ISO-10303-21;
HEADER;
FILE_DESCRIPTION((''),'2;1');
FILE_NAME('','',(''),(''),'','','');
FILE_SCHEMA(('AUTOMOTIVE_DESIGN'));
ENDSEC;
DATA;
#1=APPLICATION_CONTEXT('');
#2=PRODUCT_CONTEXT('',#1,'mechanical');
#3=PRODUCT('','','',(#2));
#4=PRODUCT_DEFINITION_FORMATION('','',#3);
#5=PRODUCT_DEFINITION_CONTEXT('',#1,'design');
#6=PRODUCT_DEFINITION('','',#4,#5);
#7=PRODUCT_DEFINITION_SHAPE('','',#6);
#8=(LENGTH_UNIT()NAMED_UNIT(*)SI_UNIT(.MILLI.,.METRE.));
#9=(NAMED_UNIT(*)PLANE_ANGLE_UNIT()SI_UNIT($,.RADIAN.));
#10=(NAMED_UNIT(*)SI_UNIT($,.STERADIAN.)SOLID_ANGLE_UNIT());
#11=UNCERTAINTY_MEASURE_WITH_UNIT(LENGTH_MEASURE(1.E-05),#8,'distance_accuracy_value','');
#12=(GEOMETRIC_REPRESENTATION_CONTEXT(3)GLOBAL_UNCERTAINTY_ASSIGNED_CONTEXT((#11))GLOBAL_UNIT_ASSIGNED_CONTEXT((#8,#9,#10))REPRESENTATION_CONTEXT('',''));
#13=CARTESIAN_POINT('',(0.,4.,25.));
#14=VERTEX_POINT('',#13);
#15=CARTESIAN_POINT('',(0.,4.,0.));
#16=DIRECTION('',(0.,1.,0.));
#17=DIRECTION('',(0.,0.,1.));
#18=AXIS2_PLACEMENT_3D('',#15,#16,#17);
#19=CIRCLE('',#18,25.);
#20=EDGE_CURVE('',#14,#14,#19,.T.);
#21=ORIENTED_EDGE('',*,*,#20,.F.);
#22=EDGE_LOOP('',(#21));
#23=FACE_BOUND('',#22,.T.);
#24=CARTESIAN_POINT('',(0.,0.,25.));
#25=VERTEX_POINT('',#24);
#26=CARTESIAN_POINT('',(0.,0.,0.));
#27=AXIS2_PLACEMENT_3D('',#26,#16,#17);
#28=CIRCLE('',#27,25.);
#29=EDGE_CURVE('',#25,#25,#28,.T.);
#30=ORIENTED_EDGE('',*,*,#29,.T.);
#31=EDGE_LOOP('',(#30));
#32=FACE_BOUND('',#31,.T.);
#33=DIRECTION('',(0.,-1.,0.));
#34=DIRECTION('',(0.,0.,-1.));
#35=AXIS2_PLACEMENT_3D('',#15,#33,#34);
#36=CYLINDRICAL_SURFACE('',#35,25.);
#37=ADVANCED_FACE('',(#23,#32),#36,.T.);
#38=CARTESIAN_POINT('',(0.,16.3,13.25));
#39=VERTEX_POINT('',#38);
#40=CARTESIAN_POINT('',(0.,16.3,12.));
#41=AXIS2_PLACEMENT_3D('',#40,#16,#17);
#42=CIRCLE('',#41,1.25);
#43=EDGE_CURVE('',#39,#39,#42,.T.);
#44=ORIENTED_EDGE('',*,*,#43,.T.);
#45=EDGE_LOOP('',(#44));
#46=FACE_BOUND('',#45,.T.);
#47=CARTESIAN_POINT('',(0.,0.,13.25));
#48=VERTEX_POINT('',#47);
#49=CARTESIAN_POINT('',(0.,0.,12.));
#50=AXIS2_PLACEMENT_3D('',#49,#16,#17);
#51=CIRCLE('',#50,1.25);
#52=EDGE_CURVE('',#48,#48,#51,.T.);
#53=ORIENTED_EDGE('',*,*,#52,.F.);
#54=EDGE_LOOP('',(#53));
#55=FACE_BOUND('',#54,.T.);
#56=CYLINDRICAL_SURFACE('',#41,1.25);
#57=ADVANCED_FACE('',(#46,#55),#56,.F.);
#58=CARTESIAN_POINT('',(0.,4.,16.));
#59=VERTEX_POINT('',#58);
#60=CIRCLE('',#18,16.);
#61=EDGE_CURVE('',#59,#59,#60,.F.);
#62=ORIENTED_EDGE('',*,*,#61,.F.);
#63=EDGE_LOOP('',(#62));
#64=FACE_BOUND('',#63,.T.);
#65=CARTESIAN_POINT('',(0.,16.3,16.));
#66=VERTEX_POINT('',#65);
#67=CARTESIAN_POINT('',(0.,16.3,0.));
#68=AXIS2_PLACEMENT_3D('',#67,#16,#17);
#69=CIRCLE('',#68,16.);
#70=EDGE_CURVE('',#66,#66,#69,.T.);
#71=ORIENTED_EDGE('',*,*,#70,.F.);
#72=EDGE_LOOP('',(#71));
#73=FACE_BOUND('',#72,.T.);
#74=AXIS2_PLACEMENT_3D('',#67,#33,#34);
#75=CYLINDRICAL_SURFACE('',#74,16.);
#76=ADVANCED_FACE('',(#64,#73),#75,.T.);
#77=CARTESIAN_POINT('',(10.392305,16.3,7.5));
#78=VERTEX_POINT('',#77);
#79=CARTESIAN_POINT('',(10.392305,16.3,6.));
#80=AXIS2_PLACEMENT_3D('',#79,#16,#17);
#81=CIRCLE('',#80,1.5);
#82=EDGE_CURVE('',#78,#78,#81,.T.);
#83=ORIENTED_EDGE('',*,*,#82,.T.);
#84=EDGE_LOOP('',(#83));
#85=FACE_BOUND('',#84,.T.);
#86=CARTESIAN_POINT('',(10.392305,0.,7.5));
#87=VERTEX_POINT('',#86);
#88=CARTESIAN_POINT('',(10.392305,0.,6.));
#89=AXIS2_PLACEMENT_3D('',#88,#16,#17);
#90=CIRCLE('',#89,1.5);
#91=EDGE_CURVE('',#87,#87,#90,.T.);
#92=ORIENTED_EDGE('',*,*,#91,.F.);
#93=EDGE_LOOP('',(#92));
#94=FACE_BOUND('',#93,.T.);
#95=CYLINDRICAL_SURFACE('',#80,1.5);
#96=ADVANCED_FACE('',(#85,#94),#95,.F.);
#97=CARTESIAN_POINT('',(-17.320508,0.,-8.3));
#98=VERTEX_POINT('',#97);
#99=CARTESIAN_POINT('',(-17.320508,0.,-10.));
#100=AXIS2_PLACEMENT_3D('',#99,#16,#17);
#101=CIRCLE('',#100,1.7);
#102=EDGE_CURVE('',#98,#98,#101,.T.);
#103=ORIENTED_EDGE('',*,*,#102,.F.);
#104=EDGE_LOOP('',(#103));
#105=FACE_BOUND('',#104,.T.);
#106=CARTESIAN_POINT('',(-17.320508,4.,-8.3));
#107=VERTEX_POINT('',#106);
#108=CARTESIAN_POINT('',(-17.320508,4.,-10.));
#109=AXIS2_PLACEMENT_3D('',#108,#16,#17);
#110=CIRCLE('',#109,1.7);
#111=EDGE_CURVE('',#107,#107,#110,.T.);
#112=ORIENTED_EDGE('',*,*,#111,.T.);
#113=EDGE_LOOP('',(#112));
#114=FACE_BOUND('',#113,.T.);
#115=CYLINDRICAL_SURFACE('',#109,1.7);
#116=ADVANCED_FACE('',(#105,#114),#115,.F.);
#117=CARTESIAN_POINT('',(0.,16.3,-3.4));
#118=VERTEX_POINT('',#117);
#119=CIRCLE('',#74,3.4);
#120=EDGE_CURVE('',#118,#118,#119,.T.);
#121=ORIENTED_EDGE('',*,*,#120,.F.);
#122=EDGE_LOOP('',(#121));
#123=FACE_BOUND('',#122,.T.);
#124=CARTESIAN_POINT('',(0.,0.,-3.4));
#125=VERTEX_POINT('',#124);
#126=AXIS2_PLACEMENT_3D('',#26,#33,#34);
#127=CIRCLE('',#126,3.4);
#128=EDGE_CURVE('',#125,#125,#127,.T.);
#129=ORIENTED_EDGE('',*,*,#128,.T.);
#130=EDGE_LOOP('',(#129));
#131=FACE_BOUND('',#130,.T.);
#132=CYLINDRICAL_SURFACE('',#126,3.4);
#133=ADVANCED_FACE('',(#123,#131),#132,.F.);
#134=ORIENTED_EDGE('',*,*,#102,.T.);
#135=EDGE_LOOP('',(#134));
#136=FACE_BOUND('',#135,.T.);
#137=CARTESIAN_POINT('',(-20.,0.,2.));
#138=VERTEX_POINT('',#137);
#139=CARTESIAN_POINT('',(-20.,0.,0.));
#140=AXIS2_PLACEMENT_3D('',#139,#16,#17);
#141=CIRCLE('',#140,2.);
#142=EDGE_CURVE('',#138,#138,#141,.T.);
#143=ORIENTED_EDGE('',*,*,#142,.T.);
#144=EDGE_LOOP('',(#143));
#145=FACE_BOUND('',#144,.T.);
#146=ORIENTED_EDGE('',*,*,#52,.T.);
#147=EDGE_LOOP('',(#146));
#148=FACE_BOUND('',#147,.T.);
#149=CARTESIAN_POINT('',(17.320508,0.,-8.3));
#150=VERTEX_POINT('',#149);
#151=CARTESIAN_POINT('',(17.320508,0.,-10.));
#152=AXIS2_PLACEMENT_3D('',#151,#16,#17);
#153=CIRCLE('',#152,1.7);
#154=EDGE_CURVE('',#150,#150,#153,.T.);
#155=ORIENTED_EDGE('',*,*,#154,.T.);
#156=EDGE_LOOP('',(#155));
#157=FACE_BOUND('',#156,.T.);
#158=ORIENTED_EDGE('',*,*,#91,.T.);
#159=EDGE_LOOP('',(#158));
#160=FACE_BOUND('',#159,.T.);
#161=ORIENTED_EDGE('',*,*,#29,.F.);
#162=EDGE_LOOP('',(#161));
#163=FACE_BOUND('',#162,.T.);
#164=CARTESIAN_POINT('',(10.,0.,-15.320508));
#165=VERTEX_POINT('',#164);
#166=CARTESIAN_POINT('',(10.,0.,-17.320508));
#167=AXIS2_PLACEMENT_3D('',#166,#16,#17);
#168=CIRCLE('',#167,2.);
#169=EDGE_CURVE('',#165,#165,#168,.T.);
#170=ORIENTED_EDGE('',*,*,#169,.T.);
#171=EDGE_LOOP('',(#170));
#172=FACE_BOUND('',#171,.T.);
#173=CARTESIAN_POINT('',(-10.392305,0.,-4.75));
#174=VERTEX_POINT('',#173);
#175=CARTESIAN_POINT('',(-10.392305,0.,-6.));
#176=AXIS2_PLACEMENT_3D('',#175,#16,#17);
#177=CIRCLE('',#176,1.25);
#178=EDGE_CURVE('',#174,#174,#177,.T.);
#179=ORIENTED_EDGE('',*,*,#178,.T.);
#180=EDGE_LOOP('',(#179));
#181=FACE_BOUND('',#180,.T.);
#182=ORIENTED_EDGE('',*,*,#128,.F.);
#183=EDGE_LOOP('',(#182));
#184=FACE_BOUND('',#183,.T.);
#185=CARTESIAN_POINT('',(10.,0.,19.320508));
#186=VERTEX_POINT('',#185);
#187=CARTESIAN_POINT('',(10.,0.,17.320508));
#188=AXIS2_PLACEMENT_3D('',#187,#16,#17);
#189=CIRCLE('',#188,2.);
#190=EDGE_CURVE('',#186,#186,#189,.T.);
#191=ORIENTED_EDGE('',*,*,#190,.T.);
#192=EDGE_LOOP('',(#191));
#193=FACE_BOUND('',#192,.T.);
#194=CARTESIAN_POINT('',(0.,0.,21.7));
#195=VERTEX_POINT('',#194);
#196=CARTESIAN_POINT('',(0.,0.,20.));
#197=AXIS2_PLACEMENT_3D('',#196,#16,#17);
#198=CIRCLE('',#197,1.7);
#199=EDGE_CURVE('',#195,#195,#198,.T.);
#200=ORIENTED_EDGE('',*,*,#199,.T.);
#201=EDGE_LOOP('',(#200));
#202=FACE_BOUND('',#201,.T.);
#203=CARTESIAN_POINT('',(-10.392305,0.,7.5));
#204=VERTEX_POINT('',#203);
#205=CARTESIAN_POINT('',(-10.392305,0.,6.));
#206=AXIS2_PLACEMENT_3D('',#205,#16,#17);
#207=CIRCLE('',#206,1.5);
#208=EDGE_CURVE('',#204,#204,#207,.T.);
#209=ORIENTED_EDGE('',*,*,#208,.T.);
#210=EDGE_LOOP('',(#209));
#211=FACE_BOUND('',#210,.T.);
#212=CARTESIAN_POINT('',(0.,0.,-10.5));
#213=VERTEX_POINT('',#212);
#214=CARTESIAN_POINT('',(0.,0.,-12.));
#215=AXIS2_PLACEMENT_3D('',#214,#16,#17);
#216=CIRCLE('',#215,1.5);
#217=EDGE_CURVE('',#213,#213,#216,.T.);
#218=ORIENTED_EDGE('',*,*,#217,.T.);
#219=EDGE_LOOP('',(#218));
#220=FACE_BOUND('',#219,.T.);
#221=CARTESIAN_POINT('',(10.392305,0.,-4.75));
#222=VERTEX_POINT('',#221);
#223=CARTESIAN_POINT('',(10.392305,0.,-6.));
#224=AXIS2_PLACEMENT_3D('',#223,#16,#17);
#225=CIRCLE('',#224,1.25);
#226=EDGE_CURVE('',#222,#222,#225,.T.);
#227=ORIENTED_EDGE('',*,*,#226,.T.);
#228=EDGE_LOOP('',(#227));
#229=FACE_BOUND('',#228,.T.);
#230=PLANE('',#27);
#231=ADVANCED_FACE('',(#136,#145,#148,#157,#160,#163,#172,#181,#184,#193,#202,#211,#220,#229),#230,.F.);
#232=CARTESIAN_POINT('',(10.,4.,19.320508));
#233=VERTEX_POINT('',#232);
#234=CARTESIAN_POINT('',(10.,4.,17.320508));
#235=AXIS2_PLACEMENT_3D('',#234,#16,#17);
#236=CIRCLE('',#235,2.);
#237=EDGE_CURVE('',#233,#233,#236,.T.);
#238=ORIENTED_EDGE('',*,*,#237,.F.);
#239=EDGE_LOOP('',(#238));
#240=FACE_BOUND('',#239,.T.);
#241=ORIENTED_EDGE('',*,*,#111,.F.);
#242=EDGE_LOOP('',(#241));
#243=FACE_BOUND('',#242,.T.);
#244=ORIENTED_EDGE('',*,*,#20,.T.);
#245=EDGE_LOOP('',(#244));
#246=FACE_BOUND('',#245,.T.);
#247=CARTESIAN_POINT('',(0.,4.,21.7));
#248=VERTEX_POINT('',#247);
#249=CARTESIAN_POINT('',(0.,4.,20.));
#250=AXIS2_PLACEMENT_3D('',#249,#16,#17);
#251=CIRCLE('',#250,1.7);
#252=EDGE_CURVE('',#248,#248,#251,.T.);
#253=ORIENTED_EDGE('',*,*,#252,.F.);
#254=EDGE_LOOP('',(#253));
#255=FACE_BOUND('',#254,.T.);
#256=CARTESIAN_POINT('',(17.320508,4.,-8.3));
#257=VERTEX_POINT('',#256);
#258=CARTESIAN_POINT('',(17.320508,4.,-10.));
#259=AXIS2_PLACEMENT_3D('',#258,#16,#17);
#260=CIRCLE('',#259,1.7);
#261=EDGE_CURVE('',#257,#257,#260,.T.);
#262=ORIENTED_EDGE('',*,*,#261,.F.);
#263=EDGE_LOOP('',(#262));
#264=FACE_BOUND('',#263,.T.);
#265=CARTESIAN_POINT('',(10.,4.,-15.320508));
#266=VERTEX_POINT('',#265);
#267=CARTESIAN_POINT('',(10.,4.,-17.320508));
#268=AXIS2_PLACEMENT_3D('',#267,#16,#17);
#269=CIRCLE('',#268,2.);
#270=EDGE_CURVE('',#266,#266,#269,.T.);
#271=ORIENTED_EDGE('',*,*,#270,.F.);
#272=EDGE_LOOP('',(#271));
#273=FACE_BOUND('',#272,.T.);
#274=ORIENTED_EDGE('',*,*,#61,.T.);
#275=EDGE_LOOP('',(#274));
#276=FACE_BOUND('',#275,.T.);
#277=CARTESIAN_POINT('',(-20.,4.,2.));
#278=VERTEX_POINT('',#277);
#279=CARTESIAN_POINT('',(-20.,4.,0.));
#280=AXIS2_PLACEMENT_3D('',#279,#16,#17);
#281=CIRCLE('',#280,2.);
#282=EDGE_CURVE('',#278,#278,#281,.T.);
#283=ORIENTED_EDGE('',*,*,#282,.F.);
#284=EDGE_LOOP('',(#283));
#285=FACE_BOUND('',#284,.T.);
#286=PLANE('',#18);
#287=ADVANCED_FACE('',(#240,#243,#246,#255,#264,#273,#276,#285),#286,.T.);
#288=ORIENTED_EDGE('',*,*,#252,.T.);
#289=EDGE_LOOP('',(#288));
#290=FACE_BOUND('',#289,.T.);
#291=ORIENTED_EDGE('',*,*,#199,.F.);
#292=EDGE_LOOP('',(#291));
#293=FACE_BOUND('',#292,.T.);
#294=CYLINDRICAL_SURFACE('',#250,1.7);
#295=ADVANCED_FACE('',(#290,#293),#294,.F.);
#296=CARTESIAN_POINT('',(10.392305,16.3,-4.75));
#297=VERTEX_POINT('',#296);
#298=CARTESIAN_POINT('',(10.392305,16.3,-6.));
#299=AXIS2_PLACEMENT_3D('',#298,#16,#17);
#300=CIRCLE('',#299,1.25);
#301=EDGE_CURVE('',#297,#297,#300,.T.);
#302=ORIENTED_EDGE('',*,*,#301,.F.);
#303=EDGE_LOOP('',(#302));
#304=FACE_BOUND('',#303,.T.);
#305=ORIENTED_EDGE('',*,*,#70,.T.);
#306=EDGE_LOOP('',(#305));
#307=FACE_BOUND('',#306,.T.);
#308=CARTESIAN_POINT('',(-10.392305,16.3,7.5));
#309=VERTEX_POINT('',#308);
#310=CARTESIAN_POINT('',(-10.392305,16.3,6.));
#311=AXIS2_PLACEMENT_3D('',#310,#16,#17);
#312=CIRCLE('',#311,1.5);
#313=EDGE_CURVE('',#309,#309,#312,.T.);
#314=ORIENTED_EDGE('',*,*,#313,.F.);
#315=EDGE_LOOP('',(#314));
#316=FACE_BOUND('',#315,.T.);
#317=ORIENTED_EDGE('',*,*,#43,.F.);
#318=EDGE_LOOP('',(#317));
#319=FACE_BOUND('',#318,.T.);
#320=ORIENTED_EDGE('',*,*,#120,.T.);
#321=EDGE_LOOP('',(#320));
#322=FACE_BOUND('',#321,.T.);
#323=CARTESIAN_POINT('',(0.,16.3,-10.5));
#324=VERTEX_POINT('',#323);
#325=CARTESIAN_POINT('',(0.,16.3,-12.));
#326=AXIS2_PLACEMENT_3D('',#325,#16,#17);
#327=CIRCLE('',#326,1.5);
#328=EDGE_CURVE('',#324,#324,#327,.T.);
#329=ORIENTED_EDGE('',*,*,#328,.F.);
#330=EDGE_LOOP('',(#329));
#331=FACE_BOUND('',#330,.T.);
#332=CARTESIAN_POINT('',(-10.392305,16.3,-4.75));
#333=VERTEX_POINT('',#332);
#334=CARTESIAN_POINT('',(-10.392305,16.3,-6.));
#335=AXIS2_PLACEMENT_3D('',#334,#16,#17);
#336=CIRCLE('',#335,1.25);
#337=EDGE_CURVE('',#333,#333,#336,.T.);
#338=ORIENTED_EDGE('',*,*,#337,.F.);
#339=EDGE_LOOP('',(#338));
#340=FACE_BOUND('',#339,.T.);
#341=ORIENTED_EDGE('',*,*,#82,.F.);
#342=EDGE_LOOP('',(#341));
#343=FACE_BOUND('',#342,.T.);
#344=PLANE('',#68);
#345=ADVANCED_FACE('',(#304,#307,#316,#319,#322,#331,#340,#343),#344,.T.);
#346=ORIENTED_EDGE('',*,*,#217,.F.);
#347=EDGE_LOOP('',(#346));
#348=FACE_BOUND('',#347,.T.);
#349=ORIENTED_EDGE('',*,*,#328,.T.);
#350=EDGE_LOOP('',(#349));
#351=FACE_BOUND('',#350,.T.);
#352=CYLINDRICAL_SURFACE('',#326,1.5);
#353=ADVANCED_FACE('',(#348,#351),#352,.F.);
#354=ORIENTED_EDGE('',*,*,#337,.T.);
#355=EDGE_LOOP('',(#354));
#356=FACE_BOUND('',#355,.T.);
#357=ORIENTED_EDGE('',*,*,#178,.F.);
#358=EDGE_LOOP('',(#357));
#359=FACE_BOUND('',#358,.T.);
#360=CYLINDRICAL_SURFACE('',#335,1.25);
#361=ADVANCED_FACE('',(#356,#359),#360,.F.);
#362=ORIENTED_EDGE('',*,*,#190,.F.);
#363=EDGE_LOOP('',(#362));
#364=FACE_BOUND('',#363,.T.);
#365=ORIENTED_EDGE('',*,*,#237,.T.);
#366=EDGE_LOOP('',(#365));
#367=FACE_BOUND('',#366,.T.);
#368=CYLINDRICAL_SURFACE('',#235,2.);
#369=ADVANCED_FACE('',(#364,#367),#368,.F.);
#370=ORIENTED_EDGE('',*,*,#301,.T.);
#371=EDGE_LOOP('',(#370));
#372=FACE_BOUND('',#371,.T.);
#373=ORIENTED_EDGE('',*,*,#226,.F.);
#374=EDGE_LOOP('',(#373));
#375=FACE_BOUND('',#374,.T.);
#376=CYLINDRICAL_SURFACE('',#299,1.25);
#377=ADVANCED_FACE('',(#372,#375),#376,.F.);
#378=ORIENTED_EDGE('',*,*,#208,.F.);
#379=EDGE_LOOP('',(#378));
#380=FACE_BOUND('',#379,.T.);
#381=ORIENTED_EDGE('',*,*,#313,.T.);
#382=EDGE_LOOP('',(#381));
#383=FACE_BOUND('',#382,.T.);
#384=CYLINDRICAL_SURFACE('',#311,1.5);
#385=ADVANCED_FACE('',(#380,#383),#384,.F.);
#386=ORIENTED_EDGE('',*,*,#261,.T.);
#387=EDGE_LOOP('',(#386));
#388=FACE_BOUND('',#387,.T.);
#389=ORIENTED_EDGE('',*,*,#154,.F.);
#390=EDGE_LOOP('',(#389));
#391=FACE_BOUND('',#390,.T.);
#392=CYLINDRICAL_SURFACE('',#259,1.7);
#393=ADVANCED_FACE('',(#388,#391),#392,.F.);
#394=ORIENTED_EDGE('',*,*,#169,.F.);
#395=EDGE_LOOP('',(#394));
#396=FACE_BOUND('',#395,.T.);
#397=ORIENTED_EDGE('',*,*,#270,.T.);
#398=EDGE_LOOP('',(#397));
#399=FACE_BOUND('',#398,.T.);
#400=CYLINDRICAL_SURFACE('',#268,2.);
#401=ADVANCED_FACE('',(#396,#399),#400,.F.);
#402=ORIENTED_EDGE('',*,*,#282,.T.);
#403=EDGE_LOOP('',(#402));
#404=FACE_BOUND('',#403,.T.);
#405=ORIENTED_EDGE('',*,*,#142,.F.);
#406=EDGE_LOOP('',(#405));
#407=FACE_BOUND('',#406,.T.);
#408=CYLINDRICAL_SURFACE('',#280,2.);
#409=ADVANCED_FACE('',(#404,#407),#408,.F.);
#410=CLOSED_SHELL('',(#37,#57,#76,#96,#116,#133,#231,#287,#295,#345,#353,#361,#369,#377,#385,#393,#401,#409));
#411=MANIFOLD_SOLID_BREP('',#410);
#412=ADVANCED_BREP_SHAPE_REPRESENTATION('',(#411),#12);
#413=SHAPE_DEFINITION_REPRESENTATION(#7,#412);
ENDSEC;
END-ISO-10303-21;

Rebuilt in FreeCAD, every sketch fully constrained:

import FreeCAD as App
import Part
import Sketcher

V = App.Vector

doc = App.newDocument("Part")
body = doc.addObject("PartDesign::Body", "Body")

sketch1 = body.newObject("Sketcher::SketchObject", "Sketch")
sketch1.AttachmentSupport = (doc.getObject("XZ_Plane"), [""])
sketch1.MapMode = "FlatFace"
sketch1.addGeometry(Part.Circle(V(0, 0, 0), V(0, 0, 1), 25), False)
sketch1.addConstraint(Sketcher.Constraint("Coincident", 0, 3, -1, 1))
sketch1.addConstraint(Sketcher.Constraint("Diameter", 0, 50.0))
pad1 = body.newObject("PartDesign::Pad", "Pad")
pad1.Profile = sketch1
pad1.Length = 4
pad1.Reversed = True

sketch2 = body.newObject("Sketcher::SketchObject", "Sketch001")
sketch2.AttachmentSupport = (doc.getObject("XZ_Plane"), [""])
sketch2.MapMode = "FlatFace"
sketch2.AttachmentOffset = App.Placement(V(0, 0, -4), App.Rotation())
sketch2.addGeometry(Part.Circle(V(10, 17.320508, 0), V(0, 0, 1), 2), False)
sketch2.addGeometry(Part.Circle(V(-20, 0, 0), V(0, 0, 1), 2), False)
sketch2.addGeometry(Part.Circle(V(10, -17.320508, 0), V(0, 0, 1), 2), False)
sketch2.addConstraint(Sketcher.Constraint("Equal", 0, 1))
sketch2.addConstraint(Sketcher.Constraint("Equal", 1, 2))
sketch2.addConstraint(Sketcher.Constraint("Symmetric", 0, 3, 2, 3, -1))
sketch2.addConstraint(Sketcher.Constraint("PointOnObject", 1, 3, -1))
sketch2.addConstraint(Sketcher.Constraint("Diameter", 0, 4.0))
sketch2.addConstraint(Sketcher.Constraint("DistanceX", -1, 1, 0, 3, 10.0))
sketch2.addConstraint(Sketcher.Constraint("DistanceX", 1, 3, -1, 1, 20.0))
sketch2.addConstraint(Sketcher.Constraint("DistanceY", -1, 1, 0, 3, 17.320508))
doc.recompute()
hole = body.newObject("PartDesign::Hole", "Hole")
hole.Profile = sketch2
hole.ThreadType = "None"
hole.Diameter = 4
hole.DepthType = "ThroughAll"
hole.Reversed = True

sketch3 = body.newObject("Sketcher::SketchObject", "Sketch002")
sketch3.AttachmentSupport = (doc.getObject("XZ_Plane"), [""])
sketch3.MapMode = "FlatFace"
sketch3.AttachmentOffset = App.Placement(V(0, 0, -4), App.Rotation())
sketch3.addGeometry(Part.Circle(V(17.320508, -10, 0), V(0, 0, 1), 1.7), False)
sketch3.addGeometry(Part.Circle(V(0, 20, 0), V(0, 0, 1), 1.7), False)
sketch3.addGeometry(Part.Circle(V(-17.320508, -10, 0), V(0, 0, 1), 1.7), False)
sketch3.addConstraint(Sketcher.Constraint("Equal", 0, 1))
sketch3.addConstraint(Sketcher.Constraint("Equal", 1, 2))
sketch3.addConstraint(Sketcher.Constraint("Symmetric", 0, 3, 2, 3, -2))
sketch3.addConstraint(Sketcher.Constraint("PointOnObject", 1, 3, -2))
sketch3.addConstraint(Sketcher.Constraint("Diameter", 0, 3.4))
sketch3.addConstraint(Sketcher.Constraint("DistanceY", 0, 3, -1, 1, 10.0))
sketch3.addConstraint(Sketcher.Constraint("DistanceY", -1, 1, 1, 3, 20.0))
sketch3.addConstraint(Sketcher.Constraint("DistanceX", -1, 1, 0, 3, 17.320508))
doc.recompute()
hole2 = body.newObject("PartDesign::Hole", "Hole001")
hole2.Profile = sketch3
hole2.ThreadType = "None"
hole2.Diameter = 3.4
hole2.DepthType = "ThroughAll"
hole2.Reversed = True

sketch4 = body.newObject("Sketcher::SketchObject", "Sketch003")
sketch4.AttachmentSupport = (doc.getObject("XZ_Plane"), [""])
sketch4.MapMode = "FlatFace"
sketch4.addGeometry(Part.Circle(V(0, 0, 0), V(0, 0, 1), 16), False)
sketch4.addConstraint(Sketcher.Constraint("Coincident", 0, 3, -1, 1))
sketch4.addConstraint(Sketcher.Constraint("Diameter", 0, 32.0))
pad2 = body.newObject("PartDesign::Pad", "Pad001")
pad2.Profile = sketch4
pad2.Length = 16.3
pad2.Reversed = True

sketch5 = body.newObject("Sketcher::SketchObject", "Sketch004")
sketch5.AttachmentSupport = (doc.getObject("XZ_Plane"), [""])
sketch5.MapMode = "FlatFace"
sketch5.addGeometry(Part.Circle(V(0, 0, 0), V(0, 0, 1), 3.4), False)
sketch5.addConstraint(Sketcher.Constraint("Coincident", 0, 3, -1, 1))
sketch5.addConstraint(Sketcher.Constraint("Diameter", 0, 6.8))
doc.recompute()
hole3 = body.newObject("PartDesign::Hole", "Hole002")
hole3.Profile = sketch5
hole3.ThreadType = "None"
hole3.Diameter = 6.8
hole3.DepthType = "ThroughAll"

sketch6 = body.newObject("Sketcher::SketchObject", "Sketch005")
sketch6.AttachmentSupport = (doc.getObject("XZ_Plane"), [""])
sketch6.MapMode = "FlatFace"
sketch6.AttachmentOffset = App.Placement(V(0, 0, -16.3), App.Rotation())
sketch6.addGeometry(Part.Circle(V(-10.392305, 6, 0), V(0, 0, 1), 1.5), False)
sketch6.addGeometry(Part.Circle(V(0, -12, 0), V(0, 0, 1), 1.5), False)
sketch6.addGeometry(Part.Circle(V(10.392305, 6, 0), V(0, 0, 1), 1.5), False)
sketch6.addConstraint(Sketcher.Constraint("Equal", 0, 1))
sketch6.addConstraint(Sketcher.Constraint("Equal", 1, 2))
sketch6.addConstraint(Sketcher.Constraint("Symmetric", 0, 3, 2, 3, -2))
sketch6.addConstraint(Sketcher.Constraint("PointOnObject", 1, 3, -2))
sketch6.addConstraint(Sketcher.Constraint("Diameter", 0, 3.0))
sketch6.addConstraint(Sketcher.Constraint("DistanceY", -1, 1, 0, 3, 6.0))
sketch6.addConstraint(Sketcher.Constraint("DistanceY", 1, 3, -1, 1, 12.0))
sketch6.addConstraint(Sketcher.Constraint("DistanceX", 0, 3, 2, 3, 20.78461))
doc.recompute()
hole4 = body.newObject("PartDesign::Hole", "Hole003")
hole4.Profile = sketch6
hole4.ThreadType = "None"
hole4.Diameter = 3
hole4.DepthType = "ThroughAll"
hole4.Reversed = True

sketch7 = body.newObject("Sketcher::SketchObject", "Sketch006")
sketch7.AttachmentSupport = (doc.getObject("XZ_Plane"), [""])
sketch7.MapMode = "FlatFace"
sketch7.AttachmentOffset = App.Placement(V(0, 0, -16.3), App.Rotation())
sketch7.addGeometry(Part.Circle(V(10.392305, -6, 0), V(0, 0, 1), 1.25), False)
sketch7.addGeometry(Part.Circle(V(0, 12, 0), V(0, 0, 1), 1.25), False)
sketch7.addGeometry(Part.Circle(V(-10.392305, -6, 0), V(0, 0, 1), 1.25), False)
sketch7.addConstraint(Sketcher.Constraint("Equal", 0, 1))
sketch7.addConstraint(Sketcher.Constraint("Equal", 1, 2))
sketch7.addConstraint(Sketcher.Constraint("Symmetric", 0, 3, 2, 3, -2))
sketch7.addConstraint(Sketcher.Constraint("PointOnObject", 1, 3, -2))
sketch7.addConstraint(Sketcher.Constraint("Diameter", 0, 2.5))
sketch7.addConstraint(Sketcher.Constraint("DistanceY", 0, 3, -1, 1, 6.0))
sketch7.addConstraint(Sketcher.Constraint("DistanceY", -1, 1, 1, 3, 12.0))
sketch7.addConstraint(Sketcher.Constraint("DistanceX", 2, 3, 0, 3, 20.78461))
doc.recompute()
hole5 = body.newObject("PartDesign::Hole", "Hole004")
hole5.Profile = sketch7
hole5.ThreadType = "None"
hole5.Diameter = 2.5
hole5.DepthType = "ThroughAll"
hole5.Reversed = True

doc.recompute()
